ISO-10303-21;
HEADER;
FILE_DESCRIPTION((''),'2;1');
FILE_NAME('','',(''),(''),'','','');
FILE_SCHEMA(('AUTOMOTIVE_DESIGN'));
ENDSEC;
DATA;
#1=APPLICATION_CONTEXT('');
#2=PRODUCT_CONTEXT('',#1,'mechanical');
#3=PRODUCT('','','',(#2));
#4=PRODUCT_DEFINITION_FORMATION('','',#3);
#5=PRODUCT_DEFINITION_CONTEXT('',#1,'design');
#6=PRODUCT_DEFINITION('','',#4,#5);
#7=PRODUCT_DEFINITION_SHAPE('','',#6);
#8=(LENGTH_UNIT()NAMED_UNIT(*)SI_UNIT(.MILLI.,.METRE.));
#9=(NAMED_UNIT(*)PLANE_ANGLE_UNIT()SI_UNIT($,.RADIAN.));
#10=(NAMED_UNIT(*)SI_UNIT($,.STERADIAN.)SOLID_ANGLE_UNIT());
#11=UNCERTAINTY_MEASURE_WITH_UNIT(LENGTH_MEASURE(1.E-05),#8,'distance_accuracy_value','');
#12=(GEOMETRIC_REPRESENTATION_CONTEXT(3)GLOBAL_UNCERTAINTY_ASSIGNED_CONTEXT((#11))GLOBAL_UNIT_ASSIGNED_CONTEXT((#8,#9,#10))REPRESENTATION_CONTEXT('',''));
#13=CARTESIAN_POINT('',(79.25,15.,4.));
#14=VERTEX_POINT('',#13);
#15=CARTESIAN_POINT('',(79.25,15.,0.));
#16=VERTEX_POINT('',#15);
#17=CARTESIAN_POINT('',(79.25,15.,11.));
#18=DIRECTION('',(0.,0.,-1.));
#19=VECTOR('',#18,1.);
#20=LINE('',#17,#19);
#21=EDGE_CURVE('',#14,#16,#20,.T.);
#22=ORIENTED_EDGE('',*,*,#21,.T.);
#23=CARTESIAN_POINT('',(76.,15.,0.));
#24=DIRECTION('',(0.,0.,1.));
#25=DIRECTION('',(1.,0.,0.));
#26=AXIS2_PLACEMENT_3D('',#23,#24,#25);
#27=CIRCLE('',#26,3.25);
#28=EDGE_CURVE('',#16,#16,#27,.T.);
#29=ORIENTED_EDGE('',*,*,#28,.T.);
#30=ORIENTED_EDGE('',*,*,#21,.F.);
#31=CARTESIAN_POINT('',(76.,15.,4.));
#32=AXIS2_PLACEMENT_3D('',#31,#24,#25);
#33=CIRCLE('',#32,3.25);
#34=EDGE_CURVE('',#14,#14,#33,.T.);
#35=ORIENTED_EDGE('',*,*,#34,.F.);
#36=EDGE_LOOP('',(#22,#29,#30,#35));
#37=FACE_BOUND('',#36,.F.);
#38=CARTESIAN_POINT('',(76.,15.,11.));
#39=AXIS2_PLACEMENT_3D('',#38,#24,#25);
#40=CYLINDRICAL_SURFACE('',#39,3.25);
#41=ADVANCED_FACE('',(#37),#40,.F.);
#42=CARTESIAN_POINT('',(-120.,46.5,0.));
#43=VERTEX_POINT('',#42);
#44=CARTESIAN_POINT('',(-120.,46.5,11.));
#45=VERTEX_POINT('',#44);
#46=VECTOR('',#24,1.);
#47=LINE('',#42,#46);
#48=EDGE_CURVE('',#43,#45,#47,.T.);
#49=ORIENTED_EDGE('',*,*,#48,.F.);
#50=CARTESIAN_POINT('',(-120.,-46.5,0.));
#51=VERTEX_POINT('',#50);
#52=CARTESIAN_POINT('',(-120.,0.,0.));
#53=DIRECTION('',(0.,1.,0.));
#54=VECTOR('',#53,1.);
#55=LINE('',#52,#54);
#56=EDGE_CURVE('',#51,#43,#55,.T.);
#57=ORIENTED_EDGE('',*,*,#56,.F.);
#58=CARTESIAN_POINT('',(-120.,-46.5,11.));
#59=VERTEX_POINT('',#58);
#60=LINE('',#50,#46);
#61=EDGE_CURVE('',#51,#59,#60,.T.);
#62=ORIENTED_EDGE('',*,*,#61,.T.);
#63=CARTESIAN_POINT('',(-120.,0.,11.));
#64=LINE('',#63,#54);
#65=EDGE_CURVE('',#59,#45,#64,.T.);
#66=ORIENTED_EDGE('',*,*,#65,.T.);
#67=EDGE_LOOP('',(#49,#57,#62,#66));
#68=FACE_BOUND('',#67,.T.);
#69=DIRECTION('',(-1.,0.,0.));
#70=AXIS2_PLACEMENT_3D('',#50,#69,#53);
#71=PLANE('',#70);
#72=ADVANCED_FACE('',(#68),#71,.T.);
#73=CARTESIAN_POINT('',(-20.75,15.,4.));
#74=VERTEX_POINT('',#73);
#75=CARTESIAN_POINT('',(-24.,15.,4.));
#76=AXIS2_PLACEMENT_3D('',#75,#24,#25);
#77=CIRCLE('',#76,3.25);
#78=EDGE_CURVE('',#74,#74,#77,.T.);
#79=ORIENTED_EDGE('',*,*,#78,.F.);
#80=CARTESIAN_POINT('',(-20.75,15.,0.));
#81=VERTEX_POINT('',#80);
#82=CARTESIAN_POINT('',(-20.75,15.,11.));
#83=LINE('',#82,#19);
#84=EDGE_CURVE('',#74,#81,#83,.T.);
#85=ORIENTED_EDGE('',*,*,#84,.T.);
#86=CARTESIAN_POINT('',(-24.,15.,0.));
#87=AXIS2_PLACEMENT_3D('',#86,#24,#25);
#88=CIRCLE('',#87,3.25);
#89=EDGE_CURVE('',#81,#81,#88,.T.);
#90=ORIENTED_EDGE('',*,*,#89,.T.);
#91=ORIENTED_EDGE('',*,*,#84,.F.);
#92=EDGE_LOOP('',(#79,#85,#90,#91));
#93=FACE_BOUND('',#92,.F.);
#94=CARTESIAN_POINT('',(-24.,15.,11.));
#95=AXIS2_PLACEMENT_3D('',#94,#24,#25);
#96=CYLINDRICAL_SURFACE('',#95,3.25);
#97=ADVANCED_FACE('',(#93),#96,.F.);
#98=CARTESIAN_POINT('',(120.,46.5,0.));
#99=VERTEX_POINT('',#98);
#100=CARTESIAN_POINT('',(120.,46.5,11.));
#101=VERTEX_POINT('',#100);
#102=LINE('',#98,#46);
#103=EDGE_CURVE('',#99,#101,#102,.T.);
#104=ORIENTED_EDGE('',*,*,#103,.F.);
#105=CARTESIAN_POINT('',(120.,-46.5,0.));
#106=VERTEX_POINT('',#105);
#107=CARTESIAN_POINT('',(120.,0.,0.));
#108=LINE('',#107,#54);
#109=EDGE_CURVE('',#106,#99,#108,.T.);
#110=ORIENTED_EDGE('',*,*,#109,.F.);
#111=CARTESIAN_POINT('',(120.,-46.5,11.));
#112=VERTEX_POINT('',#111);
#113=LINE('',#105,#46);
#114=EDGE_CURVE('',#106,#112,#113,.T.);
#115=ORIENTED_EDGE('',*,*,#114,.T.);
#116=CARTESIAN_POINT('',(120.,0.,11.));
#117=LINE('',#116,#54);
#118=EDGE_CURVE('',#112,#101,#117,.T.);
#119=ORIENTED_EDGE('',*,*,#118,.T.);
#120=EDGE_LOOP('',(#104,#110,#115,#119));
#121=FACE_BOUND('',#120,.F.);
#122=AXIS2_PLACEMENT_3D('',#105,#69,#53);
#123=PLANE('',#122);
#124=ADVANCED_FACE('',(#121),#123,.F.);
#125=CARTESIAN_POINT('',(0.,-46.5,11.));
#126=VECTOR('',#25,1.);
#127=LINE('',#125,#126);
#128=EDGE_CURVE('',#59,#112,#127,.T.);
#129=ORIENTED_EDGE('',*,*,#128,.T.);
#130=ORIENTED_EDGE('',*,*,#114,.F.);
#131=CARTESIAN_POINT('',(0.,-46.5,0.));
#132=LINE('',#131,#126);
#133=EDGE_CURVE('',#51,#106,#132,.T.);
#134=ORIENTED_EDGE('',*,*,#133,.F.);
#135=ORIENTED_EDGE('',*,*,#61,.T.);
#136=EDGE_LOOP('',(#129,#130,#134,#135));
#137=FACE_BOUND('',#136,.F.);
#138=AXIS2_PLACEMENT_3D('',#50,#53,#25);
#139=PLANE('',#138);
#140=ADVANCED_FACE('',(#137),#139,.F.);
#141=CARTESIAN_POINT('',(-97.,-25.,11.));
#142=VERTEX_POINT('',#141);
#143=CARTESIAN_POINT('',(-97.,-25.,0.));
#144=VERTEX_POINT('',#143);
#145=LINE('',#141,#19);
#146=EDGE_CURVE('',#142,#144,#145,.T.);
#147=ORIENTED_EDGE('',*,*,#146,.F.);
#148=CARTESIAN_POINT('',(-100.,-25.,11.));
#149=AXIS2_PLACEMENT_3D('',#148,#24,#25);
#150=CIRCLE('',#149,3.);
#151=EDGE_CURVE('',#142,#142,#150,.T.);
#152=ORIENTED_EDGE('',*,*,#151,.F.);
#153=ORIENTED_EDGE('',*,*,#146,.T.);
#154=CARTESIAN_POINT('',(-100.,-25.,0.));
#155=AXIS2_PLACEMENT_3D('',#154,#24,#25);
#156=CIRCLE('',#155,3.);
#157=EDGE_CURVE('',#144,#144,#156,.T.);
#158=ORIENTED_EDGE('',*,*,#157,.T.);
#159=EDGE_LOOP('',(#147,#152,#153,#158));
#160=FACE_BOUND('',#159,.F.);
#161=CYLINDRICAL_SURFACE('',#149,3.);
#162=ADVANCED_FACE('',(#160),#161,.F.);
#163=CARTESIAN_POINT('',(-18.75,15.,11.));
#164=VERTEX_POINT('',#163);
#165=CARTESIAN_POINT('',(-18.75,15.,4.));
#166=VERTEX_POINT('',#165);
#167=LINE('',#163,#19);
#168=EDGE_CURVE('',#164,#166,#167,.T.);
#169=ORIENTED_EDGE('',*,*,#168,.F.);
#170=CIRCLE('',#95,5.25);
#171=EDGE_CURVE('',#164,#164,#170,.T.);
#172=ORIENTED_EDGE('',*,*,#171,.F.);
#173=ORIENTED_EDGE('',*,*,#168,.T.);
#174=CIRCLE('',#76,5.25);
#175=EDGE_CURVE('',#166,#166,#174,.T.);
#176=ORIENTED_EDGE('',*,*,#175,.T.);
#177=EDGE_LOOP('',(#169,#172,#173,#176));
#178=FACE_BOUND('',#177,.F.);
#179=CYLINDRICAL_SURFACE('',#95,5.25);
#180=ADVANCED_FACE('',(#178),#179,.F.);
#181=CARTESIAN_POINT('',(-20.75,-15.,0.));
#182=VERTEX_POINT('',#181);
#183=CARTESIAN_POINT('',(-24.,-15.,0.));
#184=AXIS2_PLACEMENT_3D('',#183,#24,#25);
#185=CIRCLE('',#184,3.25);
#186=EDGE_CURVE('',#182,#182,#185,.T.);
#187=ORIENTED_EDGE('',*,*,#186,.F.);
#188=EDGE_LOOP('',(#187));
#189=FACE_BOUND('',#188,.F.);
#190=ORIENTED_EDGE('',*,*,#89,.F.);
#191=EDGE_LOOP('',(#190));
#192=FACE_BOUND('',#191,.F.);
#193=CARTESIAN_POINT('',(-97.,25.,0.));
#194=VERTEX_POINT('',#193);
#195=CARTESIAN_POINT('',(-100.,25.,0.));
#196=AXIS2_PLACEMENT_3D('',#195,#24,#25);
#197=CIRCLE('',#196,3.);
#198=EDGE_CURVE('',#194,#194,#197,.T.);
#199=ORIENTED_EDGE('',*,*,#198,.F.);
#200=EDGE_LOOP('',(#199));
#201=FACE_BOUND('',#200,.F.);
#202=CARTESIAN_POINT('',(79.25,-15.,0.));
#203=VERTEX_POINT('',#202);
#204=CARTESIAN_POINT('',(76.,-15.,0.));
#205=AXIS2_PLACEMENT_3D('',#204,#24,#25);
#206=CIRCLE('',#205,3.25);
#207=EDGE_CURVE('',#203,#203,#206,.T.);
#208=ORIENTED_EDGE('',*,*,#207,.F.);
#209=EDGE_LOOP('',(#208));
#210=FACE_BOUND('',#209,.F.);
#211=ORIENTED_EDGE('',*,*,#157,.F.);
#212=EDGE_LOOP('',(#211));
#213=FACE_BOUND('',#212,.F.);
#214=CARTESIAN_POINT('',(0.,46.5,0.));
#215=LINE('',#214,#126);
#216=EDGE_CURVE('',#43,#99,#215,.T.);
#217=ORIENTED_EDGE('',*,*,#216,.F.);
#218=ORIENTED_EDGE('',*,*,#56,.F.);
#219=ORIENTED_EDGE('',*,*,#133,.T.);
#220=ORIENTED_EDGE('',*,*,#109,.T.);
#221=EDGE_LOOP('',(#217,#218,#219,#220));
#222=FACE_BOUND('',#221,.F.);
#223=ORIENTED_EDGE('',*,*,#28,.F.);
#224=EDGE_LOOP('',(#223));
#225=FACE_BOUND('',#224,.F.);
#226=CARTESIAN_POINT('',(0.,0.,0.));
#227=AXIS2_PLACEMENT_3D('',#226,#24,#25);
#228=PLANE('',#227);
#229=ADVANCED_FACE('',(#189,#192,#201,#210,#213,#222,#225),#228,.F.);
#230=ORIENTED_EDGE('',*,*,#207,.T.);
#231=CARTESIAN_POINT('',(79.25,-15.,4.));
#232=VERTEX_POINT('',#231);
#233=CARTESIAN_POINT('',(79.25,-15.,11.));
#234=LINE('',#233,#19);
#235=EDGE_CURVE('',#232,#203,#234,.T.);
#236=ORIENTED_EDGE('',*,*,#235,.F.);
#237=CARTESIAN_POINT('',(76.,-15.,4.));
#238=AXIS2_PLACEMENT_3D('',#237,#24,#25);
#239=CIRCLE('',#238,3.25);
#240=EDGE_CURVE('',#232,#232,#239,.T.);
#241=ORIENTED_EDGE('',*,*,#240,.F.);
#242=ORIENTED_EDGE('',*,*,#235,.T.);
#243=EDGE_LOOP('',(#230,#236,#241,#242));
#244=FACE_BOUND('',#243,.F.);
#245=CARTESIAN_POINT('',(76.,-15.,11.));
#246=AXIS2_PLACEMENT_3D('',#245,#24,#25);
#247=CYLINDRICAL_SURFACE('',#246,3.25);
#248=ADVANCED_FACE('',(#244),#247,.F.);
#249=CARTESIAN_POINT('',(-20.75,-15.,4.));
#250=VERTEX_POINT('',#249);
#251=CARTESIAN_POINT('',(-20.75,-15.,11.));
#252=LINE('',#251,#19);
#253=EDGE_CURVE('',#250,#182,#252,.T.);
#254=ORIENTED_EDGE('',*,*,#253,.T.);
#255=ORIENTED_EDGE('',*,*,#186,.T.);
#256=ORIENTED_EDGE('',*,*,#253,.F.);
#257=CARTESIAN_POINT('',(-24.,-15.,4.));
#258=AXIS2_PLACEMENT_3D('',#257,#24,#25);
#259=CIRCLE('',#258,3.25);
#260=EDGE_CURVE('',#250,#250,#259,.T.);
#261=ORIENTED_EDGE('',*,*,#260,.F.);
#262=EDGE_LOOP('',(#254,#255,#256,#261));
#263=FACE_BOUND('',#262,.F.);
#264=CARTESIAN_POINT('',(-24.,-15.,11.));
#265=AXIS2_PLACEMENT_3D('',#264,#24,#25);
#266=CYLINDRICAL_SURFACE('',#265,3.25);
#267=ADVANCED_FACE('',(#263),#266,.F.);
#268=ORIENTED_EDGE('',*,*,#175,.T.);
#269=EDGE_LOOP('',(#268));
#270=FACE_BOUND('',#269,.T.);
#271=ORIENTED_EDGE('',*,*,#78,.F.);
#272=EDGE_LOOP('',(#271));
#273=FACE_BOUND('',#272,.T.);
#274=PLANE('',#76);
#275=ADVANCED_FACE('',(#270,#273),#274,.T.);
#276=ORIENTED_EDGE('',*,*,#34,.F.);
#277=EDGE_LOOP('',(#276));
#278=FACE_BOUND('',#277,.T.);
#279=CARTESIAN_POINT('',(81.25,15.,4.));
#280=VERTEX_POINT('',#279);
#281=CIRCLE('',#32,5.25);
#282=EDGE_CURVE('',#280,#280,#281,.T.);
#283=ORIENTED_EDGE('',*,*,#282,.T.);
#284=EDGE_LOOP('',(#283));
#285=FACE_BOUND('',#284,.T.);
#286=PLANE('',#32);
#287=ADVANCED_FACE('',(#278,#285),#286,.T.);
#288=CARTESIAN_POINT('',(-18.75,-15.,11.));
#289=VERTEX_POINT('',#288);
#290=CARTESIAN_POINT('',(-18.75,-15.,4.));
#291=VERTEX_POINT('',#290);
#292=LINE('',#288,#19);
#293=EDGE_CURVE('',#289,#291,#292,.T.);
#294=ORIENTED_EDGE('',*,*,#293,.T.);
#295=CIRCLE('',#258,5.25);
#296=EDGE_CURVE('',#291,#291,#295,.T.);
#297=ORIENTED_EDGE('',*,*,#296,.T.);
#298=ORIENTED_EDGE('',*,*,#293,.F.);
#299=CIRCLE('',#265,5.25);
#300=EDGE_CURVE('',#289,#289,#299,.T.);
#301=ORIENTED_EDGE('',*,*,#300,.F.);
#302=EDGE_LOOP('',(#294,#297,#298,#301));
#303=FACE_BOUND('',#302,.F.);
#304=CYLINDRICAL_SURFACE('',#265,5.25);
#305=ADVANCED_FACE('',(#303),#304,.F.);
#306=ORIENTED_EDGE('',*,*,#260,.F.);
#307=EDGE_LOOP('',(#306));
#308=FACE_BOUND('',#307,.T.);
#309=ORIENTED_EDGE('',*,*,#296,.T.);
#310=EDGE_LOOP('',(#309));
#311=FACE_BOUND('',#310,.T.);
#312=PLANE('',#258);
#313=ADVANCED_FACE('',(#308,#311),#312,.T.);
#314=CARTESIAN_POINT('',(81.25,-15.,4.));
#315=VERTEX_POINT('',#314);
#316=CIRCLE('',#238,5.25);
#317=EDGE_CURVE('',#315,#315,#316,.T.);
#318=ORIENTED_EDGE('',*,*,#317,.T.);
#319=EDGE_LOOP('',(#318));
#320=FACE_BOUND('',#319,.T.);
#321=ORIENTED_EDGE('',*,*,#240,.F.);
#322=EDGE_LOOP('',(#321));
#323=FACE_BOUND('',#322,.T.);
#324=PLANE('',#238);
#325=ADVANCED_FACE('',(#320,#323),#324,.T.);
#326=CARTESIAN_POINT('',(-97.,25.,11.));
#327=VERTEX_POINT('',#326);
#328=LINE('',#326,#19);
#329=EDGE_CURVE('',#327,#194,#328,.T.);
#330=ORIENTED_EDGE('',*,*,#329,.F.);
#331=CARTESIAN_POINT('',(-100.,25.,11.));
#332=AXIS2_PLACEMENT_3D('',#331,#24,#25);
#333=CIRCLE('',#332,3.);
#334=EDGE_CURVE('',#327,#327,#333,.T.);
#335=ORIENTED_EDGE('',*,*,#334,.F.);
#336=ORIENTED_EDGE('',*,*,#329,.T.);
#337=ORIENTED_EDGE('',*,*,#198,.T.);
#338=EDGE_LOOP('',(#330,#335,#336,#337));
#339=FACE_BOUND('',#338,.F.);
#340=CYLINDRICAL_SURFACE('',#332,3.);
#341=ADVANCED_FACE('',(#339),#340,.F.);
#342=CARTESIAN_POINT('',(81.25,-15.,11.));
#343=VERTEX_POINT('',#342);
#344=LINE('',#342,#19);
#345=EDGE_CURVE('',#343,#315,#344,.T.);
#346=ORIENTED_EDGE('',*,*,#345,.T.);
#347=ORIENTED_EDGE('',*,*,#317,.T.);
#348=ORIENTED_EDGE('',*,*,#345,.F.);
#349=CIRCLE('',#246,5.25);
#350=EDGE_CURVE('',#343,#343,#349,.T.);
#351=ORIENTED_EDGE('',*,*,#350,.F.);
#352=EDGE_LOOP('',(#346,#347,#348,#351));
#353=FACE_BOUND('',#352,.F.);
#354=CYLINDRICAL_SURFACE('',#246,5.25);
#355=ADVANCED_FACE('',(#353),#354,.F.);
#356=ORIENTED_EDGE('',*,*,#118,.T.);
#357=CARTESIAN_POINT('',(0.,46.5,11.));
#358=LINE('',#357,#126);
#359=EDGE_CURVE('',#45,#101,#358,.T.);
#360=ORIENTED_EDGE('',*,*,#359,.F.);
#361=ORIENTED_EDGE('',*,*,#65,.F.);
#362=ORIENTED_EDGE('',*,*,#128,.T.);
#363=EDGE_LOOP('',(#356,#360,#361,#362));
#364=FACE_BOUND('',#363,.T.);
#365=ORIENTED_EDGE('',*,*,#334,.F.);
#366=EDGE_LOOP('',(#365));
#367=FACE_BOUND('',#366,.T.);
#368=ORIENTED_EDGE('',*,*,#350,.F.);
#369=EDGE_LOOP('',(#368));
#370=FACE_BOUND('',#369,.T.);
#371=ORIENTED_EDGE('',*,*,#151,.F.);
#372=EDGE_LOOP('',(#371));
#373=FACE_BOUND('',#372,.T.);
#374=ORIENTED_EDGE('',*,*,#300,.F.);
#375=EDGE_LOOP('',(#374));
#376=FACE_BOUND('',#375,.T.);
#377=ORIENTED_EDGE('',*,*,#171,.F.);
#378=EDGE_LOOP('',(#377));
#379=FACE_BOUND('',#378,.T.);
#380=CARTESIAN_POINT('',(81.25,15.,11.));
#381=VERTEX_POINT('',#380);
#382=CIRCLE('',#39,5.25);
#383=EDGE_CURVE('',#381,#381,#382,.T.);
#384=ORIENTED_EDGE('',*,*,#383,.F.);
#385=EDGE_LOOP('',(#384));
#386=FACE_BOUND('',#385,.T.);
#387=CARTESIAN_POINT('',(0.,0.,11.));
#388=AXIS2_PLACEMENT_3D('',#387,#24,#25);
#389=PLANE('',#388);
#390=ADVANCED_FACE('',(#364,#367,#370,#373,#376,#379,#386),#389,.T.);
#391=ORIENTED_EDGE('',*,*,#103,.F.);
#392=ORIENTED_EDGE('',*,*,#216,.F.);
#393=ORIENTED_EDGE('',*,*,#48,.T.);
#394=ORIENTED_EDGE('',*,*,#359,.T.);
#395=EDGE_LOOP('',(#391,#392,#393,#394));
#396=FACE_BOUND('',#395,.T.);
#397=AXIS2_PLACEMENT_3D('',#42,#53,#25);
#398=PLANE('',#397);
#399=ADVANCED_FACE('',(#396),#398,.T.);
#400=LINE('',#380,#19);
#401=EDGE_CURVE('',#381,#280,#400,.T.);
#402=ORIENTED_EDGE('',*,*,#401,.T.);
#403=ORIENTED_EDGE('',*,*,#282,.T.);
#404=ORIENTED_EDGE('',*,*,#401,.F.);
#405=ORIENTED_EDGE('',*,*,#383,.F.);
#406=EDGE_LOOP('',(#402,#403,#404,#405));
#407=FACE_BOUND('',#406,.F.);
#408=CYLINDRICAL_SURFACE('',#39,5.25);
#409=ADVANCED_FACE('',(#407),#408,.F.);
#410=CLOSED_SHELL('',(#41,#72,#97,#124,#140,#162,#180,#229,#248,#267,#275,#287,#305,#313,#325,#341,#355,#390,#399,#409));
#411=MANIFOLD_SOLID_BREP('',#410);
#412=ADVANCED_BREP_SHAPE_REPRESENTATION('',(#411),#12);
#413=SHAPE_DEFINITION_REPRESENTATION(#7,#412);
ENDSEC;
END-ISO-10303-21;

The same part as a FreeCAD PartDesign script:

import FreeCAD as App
import Part
import Sketcher


def add_polygon(sketch, points):
    """Adds a closed chain of lines whose ends are joined by coincident constraints."""
    first, n = sketch.GeometryCount, len(points)
    for a, b in zip(points, points[1:] + points[:1]):
        sketch.addGeometry(Part.LineSegment(App.Vector(*a, 0), App.Vector(*b, 0)), False)
    for i in range(n):
        sketch.addConstraint(Sketcher.Constraint("Coincident", first + i, 2, first + (i + 1) % n, 1))

doc = App.newDocument("Part")
body = doc.addObject("PartDesign::Body", "Body")

sketch1 = body.newObject("Sketcher::SketchObject", "Sketch")
sketch1.AttachmentSupport = (doc.getObject("XY_Plane"), [""])
sketch1.MapMode = "FlatFace"
add_polygon(sketch1, [(-120, 46), (-120, -46), (120, -46), (120, 46)])
sketch1.addConstraint([
    Sketcher.Constraint("Vertical", 0),
    Sketcher.Constraint("Horizontal", 1),
    Sketcher.Constraint("Vertical", 2),
    Sketcher.Constraint("Horizontal", 3),
    Sketcher.Constraint("Symmetric", 0, 2, 2, 2, -1, 1),
    Sketcher.Constraint("DistanceX", 1, 1, 1, 2, 240.0),
    Sketcher.Constraint("DistanceY", 0, 2, 0, 1, 93.0),
])
pad1 = body.newObject("PartDesign::Pad", "Pad")
pad1.Profile = sketch1
pad1.Length = 11

sketch2 = body.newObject("Sketcher::SketchObject", "Sketch001")
sketch2.AttachmentSupport = (doc.getObject("XY_Plane"), [""])
sketch2.MapMode = "FlatFace"
sketch2.AttachmentOffset = App.Placement(App.Vector(0, 0, 11), App.Rotation())
sketch2.addGeometry([
    Part.Circle(App.Vector(76, 15, 0), App.Vector(0, 0, 1), 3.2),
    Part.Circle(App.Vector(-24, 15, 0), App.Vector(0, 0, 1), 3.2),
    Part.Circle(App.Vector(-100, 25, 0), App.Vector(0, 0, 1), 3),
    Part.Circle(App.Vector(-100, -25, 0), App.Vector(0, 0, 1), 3),
    Part.Circle(App.Vector(-24, -15, 0), App.Vector(0, 0, 1), 3.2),
    Part.Circle(App.Vector(76, -15, 0), App.Vector(0, 0, 1), 3.2),
], False)
sketch2.addConstraint([
    Sketcher.Constraint("Equal", 0, 1),
    Sketcher.Constraint("Equal", 2, 3),
    Sketcher.Constraint("Equal", 1, 4),
    Sketcher.Constraint("Equal", 4, 5),
    Sketcher.Constraint("Symmetric", 2, 3, 3, 3, -1),
    Sketcher.Constraint("Symmetric", 1, 3, 4, 3, -1),
    Sketcher.Constraint("Symmetric", 0, 3, 5, 3, -1),
    Sketcher.Constraint("Horizontal", 0, 3, 1, 3),
    Sketcher.Constraint("Diameter", 2, 6.0),
    Sketcher.Constraint("Diameter", 0, 6.5),
    Sketcher.Constraint("DistanceX", -1, 1, 0, 3, 76.0),
    Sketcher.Constraint("DistanceY", -1, 1, 0, 3, 15.0),
    Sketcher.Constraint("DistanceX", 1, 3, -1, 1, 24.0),
    Sketcher.Constraint("DistanceX", 2, 3, -1, 1, 100.0),
    Sketcher.Constraint("DistanceY", -1, 1, 2, 3, 25.0),
])
pocket1 = body.newObject("PartDesign::Pocket", "Pocket")
pocket1.Profile = sketch2
pocket1.Type = "ThroughAll"

sketch3 = body.newObject("Sketcher::SketchObject", "Sketch002")
sketch3.AttachmentSupport = (doc.getObject("XY_Plane"), [""])
sketch3.MapMode = "FlatFace"
sketch3.AttachmentOffset = App.Placement(App.Vector(0, 0, 11), App.Rotation())
sketch3.addGeometry([
    Part.Circle(App.Vector(-24, 15, 0), App.Vector(0, 0, 1), 5),
    Part.Circle(App.Vector(76, 15, 0), App.Vector(0, 0, 1), 5),
    Part.Circle(App.Vector(76, -15, 0), App.Vector(0, 0, 1), 5),
    Part.Circle(App.Vector(-24, -15, 0), App.Vector(0, 0, 1), 5),
], False)
sketch3.addConstraint([
    Sketcher.Constraint("Equal", 0, 1),
    Sketcher.Constraint("Equal", 1, 2),
    Sketcher.Constraint("Equal", 2, 3),
    Sketcher.Constraint("Symmetric", 1, 3, 2, 3, -1),
    Sketcher.Constraint("Symmetric", 0, 3, 3, 3, -1),
    Sketcher.Constraint("Horizontal", 0, 3, 1, 3),
    Sketcher.Constraint("Diameter", 0, 10.5),
    Sketcher.Constraint("DistanceX", 0, 3, -1, 1, 24.0),
    Sketcher.Constraint("DistanceY", -1, 1, 0, 3, 15.0),
    Sketcher.Constraint("DistanceX", -1, 1, 1, 3, 76.0),
])
pocket2 = body.newObject("PartDesign::Pocket", "Pocket001")
pocket2.Profile = sketch3
pocket2.Length = 7

doc.recompute()
